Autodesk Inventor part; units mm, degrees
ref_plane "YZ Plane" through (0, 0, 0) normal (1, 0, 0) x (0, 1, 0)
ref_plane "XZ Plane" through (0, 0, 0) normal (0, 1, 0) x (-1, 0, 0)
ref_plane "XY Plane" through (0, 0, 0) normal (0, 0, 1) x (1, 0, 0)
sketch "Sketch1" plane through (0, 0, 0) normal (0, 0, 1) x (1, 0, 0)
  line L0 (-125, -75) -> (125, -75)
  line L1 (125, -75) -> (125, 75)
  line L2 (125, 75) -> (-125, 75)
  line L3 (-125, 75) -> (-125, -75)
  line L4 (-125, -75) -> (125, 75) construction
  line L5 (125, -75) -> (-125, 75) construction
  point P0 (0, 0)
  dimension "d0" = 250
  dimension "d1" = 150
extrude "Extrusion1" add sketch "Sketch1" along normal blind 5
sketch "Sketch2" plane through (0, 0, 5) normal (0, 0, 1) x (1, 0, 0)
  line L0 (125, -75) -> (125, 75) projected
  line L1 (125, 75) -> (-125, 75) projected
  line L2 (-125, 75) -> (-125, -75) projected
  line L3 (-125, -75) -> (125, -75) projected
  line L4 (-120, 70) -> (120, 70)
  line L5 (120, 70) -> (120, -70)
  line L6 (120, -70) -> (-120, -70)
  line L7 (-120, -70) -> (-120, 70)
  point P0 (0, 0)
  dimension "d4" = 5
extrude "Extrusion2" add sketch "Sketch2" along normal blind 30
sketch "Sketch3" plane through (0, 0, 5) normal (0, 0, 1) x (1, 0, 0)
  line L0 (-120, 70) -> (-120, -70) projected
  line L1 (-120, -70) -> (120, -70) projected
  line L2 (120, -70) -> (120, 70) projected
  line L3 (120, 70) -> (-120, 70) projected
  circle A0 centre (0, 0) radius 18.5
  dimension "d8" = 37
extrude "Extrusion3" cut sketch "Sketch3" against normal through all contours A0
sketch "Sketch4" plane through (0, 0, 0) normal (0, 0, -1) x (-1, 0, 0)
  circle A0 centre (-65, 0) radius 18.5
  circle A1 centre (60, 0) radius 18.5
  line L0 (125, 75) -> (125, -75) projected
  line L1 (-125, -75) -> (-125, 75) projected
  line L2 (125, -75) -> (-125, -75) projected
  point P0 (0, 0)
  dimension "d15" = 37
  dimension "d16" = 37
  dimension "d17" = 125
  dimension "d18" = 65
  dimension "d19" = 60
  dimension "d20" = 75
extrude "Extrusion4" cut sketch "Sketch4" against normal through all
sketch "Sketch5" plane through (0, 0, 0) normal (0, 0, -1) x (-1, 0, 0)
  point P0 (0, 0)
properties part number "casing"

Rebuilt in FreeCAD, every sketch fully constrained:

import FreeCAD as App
import Part
import Sketcher

V = App.Vector
Q = App.Units.Quantity


def add_polygon(sketch, points):
    """Adds a closed chain of lines whose ends are joined by coincident constraints."""
    first, n = sketch.GeometryCount, len(points)
    for a, b in zip(points, points[1:] + points[:1]):
        sketch.addGeometry(Part.LineSegment(App.Vector(*a, 0), App.Vector(*b, 0)), False)
    for i in range(n):
        sketch.addConstraint(Sketcher.Constraint("Coincident", first + i, 2, first + (i + 1) % n, 1))

doc = App.newDocument("Part")
body = doc.addObject("PartDesign::Body", "Body")

sketch1 = body.newObject("Sketcher::SketchObject", "Sketch")
sketch1.AttachmentSupport = (doc.getObject("XY_Plane"), [""])
sketch1.MapMode = "FlatFace"
add_polygon(sketch1, [(-125, 75), (-125, -75), (125, -75), (125, 75)])
sketch1.addConstraint([
    Sketcher.Constraint("Vertical", 0),
    Sketcher.Constraint("Horizontal", 1),
    Sketcher.Constraint("Vertical", 2),
    Sketcher.Constraint("Horizontal", 3),
    Sketcher.Constraint("Symmetric", 0, 2, 2, 2, -1, 1),
    Sketcher.Constraint("DistanceX", 1, 1, 1, 2, Q("250 mm")),
    Sketcher.Constraint("DistanceY", 0, 2, 0, 1, Q("150 mm")),
])
pad1 = body.newObject("PartDesign::Pad", "Pad")
pad1.Profile = sketch1
pad1.Length = 5

sketch2 = body.newObject("Sketcher::SketchObject", "Sketch001")
sketch2.AttachmentSupport = (doc.getObject("XY_Plane"), [""])
sketch2.MapMode = "FlatFace"
sketch2.AttachmentOffset = App.Placement(V(0, 0, 5), App.Rotation())
add_polygon(sketch2, [(-125, -75), (125, -75), (125, 75), (-125, 75)])
add_polygon(sketch2, [(-120, -70), (-120, 70), (120, 70), (120, -70)])
sketch2.addConstraint([
    Sketcher.Constraint("Horizontal", 0),
    Sketcher.Constraint("Vertical", 1),
    Sketcher.Constraint("Horizontal", 2),
    Sketcher.Constraint("Vertical", 3),
    Sketcher.Constraint("Vertical", 4),
    Sketcher.Constraint("Horizontal", 5),
    Sketcher.Constraint("Vertical", 6),
    Sketcher.Constraint("Horizontal", 7),
    Sketcher.Constraint("Symmetric", 0, 2, 2, 2, -1, 1),
    Sketcher.Constraint("Symmetric", 4, 2, 6, 2, -1, 1),
    Sketcher.Constraint("DistanceX", 2, 2, 4, 2, Q("5 mm")),
    Sketcher.Constraint("DistanceY", 4, 2, 2, 2, Q("5 mm")),
    Sketcher.Constraint("DistanceX", 0, 1, 0, 2, Q("250 mm")),
    Sketcher.Constraint("DistanceY", 1, 1, 1, 2, Q("150 mm")),
])
pad2 = body.newObject("PartDesign::Pad", "Pad001")
pad2.Profile = sketch2
pad2.Length = 30

sketch3 = body.newObject("Sketcher::SketchObject", "Sketch002")
sketch3.AttachmentSupport = (doc.getObject("XY_Plane"), [""])
sketch3.MapMode = "FlatFace"
sketch3.AttachmentOffset = App.Placement(V(0, 0, 5), App.Rotation())
sketch3.addGeometry(Part.Circle(V(0, 0, 0), V(0, 0, 1), 18.5), False)
sketch3.addConstraint([
    Sketcher.Constraint("Coincident", 0, 3, -1, 1),
    Sketcher.Constraint("Diameter", 0, Q("37 mm")),
])
pocket1 = body.newObject("PartDesign::Pocket", "Pocket")
pocket1.Profile = sketch3
pocket1.Type = "ThroughAll"

sketch4 = body.newObject("Sketcher::SketchObject", "Sketch003")
sketch4.AttachmentSupport = (doc.getObject("XY_Plane"), [""])
sketch4.MapMode = "FlatFace"
sketch4.addGeometry([
    Part.Circle(V(65, 0, 0), V(0, 0, 1), 18.5),
    Part.Circle(V(-60, 0, 0), V(0, 0, 1), 18.5),
], False)
sketch4.addConstraint([
    Sketcher.Constraint("Equal", 0, 1),
    Sketcher.Constraint("PointOnObject", 0, 3, -1),
    Sketcher.Constraint("PointOnObject", 1, 3, -1),
    Sketcher.Constraint("Diameter", 0, Q("37 mm")),
    Sketcher.Constraint("DistanceX", -1, 1, 0, 3, Q("65 mm")),
    Sketcher.Constraint("DistanceX", 1, 3, -1, 1, Q("60 mm")),
])
pocket2 = body.newObject("PartDesign::Pocket", "Pocket001")
pocket2.Profile = sketch4
pocket2.Type = "ThroughAll"
pocket2.Reversed = True

doc.recompute()
